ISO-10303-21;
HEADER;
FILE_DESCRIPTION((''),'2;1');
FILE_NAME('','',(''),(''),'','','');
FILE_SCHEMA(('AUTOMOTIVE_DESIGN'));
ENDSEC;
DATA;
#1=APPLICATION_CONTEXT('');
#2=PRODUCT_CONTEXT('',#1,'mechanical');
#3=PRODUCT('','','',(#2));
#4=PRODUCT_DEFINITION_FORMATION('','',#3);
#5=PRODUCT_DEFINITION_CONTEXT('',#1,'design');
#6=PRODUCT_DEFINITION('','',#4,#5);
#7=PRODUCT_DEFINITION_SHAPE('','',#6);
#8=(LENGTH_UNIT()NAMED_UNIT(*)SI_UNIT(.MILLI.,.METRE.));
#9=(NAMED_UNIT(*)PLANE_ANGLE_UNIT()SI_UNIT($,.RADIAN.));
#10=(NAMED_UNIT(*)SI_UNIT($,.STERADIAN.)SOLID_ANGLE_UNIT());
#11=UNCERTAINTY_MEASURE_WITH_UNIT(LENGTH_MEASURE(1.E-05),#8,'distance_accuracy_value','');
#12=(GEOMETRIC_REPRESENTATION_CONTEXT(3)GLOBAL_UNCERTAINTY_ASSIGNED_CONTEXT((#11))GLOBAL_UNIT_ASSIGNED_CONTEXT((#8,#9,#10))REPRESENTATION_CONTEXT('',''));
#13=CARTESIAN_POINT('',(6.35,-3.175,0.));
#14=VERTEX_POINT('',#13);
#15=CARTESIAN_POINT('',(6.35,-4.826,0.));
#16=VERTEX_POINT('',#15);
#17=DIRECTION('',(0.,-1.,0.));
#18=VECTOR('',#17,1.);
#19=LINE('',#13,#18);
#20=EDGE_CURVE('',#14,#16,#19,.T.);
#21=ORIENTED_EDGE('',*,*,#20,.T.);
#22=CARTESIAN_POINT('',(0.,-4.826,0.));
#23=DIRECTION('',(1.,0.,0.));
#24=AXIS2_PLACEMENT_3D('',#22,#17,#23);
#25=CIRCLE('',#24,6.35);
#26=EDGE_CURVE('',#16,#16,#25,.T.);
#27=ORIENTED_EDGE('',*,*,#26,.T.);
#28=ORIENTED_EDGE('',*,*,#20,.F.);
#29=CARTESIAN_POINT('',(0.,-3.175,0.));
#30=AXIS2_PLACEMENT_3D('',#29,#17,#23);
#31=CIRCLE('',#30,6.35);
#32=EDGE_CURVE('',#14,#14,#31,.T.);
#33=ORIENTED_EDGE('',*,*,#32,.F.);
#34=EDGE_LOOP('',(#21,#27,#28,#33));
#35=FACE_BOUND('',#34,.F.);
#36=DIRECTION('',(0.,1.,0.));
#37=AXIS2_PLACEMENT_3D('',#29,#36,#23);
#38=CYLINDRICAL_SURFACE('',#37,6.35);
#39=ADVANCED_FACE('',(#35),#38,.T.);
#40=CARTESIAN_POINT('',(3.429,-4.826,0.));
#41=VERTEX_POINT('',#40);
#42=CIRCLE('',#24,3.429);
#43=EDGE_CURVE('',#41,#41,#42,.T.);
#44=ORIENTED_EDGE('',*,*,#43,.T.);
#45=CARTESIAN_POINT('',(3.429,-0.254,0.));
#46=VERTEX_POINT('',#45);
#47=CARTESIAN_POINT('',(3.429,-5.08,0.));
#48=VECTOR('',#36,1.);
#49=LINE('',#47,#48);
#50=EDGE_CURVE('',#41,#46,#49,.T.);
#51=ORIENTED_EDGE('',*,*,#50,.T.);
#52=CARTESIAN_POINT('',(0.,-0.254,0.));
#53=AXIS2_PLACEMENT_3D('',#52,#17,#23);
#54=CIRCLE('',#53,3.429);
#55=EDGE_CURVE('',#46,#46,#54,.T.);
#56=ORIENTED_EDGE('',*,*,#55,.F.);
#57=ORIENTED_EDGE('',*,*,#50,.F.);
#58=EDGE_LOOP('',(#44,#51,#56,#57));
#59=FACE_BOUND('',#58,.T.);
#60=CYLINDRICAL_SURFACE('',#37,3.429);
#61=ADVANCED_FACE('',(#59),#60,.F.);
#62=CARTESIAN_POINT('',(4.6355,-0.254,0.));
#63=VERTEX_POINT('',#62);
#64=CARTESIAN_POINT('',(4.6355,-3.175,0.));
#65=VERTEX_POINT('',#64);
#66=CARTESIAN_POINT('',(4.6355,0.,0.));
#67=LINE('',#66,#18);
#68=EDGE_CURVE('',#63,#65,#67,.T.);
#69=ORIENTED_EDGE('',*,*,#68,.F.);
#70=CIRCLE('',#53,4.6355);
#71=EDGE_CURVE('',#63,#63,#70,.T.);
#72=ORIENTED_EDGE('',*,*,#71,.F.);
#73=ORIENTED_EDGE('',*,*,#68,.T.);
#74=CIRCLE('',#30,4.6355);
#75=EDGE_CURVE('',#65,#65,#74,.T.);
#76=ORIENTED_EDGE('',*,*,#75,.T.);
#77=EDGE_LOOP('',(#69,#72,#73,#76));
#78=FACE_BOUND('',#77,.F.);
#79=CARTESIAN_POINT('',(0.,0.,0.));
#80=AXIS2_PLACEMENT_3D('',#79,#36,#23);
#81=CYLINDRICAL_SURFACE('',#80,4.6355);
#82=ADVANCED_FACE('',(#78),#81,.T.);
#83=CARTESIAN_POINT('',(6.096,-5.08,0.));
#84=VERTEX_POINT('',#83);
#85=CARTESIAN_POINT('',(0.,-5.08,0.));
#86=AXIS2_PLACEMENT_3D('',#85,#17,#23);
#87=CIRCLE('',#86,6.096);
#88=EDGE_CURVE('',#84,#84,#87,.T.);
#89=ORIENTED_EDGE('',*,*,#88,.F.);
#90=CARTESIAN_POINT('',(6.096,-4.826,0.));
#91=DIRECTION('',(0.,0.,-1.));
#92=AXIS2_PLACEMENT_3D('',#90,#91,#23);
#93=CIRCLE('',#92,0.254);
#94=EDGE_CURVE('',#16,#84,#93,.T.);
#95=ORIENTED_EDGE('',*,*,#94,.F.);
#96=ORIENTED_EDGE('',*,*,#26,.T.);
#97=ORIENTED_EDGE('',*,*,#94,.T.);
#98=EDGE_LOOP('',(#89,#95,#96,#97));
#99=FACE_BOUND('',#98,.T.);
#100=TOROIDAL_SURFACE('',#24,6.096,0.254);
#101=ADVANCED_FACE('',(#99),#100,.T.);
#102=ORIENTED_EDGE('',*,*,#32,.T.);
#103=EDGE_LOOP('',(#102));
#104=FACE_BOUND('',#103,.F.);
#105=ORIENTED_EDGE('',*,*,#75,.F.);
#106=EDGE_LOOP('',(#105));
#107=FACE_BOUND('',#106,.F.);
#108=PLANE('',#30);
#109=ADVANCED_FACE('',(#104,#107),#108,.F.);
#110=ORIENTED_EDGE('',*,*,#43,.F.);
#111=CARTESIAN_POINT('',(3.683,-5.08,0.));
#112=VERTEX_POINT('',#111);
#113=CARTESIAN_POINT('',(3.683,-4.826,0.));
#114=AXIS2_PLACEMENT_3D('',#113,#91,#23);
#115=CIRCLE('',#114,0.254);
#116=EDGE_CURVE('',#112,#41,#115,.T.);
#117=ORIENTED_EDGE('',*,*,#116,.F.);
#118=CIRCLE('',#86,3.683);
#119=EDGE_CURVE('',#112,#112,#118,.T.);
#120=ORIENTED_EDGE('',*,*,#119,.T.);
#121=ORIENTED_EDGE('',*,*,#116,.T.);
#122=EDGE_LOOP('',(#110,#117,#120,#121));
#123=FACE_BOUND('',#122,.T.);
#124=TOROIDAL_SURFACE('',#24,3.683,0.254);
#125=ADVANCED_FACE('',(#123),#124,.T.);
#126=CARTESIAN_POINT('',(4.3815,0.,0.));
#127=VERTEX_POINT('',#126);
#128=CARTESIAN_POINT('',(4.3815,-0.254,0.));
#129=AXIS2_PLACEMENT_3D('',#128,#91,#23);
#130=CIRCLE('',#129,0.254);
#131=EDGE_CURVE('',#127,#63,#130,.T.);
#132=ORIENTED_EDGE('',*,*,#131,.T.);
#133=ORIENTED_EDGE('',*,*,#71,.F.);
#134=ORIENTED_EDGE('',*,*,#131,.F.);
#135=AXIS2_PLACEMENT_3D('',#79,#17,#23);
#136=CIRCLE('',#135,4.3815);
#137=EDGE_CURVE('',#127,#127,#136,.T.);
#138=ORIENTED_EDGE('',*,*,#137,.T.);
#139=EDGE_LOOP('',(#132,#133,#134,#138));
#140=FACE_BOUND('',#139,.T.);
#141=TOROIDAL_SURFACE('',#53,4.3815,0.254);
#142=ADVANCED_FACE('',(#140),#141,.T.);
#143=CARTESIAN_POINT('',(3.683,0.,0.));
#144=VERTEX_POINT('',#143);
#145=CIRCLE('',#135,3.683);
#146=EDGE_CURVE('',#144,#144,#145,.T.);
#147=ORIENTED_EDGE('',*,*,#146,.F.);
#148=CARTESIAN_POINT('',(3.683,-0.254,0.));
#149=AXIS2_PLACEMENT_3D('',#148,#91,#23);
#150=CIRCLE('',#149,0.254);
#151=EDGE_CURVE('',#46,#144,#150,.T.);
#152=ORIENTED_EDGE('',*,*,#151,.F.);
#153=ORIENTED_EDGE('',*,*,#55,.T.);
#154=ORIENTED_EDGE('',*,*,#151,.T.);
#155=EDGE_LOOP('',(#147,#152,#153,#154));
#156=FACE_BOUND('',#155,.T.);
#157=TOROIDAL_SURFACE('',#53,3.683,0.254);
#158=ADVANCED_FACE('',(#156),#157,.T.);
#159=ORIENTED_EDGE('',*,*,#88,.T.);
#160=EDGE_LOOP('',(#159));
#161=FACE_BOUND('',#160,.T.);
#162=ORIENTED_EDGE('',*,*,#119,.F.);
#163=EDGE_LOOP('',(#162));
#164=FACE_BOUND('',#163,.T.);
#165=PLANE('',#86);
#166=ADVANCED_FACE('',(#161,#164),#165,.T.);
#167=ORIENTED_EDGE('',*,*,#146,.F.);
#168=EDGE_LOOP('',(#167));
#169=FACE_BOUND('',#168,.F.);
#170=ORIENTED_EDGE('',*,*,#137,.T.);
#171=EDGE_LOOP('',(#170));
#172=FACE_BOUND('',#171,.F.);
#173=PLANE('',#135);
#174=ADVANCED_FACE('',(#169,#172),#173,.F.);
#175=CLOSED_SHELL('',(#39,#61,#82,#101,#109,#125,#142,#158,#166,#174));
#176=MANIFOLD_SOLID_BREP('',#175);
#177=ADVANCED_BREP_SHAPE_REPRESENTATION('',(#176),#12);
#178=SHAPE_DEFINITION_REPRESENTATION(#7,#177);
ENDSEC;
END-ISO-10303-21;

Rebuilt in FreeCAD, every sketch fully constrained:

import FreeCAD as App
import Part
import Sketcher

V = App.Vector
Q = App.Units.Quantity


def edges_at(feature, points):
    """Names of the edges that pass closest to the given points."""
    edges = feature.Shape.Edges
    near = lambda p: min(range(len(edges)), key=lambda i: edges[i].distToShape(Part.Vertex(*p))[0])
    return sorted({f"Edge{near(p) + 1}" for p in points})

doc = App.newDocument("Part")
params = doc.addObject("Spreadsheet::Sheet", "Params")
for row, (alias, value) in enumerate([
    ("sketch1_diameter", "0.27 in"),
    ("sketch1_diameter2", "0.365 in"),
    ("pad1_length", "0.125 in"),
    ("sketch2_diameter", "0.5 in"),
    ("sketch2_diameter2", "0.27 in"),
    ("pad2_length", "0.075 in"),
    ("fillet_radius", "0.01 in"),
], start=1):
    params.set(f"A{row}", alias)
    params.set(f"B{row}", "=" + value)
    params.setAlias(f"B{row}", alias)

body = doc.addObject("PartDesign::Body", "Body")

sketch1 = body.newObject("Sketcher::SketchObject", "Sketch")
sketch1.AttachmentSupport = (doc.getObject("XZ_Plane"), [""])
sketch1.MapMode = "FlatFace"
sketch1.addGeometry([
    Part.Circle(V(0, 0, 0), V(0, 0, 1), 4.6),
    Part.Circle(V(0, 0, 0), V(0, 0, 1), 3.4),
], False)
sketch1.addConstraint([
    Sketcher.Constraint("Coincident", 0, 3, -1, 1),
    Sketcher.Constraint("Coincident", 1, 3, -1, 1),
    Sketcher.Constraint("Diameter", 1, Q("0.27 in")),
    Sketcher.Constraint("Diameter", 0, Q("0.365 in")),
])
sketch1.setExpression("Constraints[2]", "Params.sketch1_diameter")
sketch1.setExpression("Constraints[3]", "Params.sketch1_diameter2")
pad1 = body.newObject("PartDesign::Pad", "Pad")
pad1.Profile = sketch1
pad1.setExpression("Length", "Params.pad1_length")

sketch2 = body.newObject("Sketcher::SketchObject", "Sketch001")
sketch2.AttachmentSupport = (doc.getObject("XZ_Plane"), [""])
sketch2.MapMode = "FlatFace"
sketch2.AttachmentOffset = App.Placement(V(0, 0, 0.125 * 25.4), App.Rotation())
sketch2.addGeometry([
    Part.Circle(V(0, 0, 0), V(0, 0, 1), 6.3),
    Part.Circle(V(0, 0, 0), V(0, 0, 1), 3.4),
], False)
sketch2.addConstraint([
    Sketcher.Constraint("Coincident", 0, 3, -1, 1),
    Sketcher.Constraint("Coincident", 1, 3, -1, 1),
    Sketcher.Constraint("Diameter", 0, Q("0.5 in")),
    Sketcher.Constraint("Diameter", 1, Q("0.27 in")),
])
sketch2.setExpression("Constraints[2]", "Params.sketch2_diameter")
sketch2.setExpression("Constraints[3]", "Params.sketch2_diameter2")
pad2 = body.newObject("PartDesign::Pad", "Pad001")
pad2.Profile = sketch2
pad2.setExpression("Length", "Params.pad2_length")
doc.recompute()

fillet = body.newObject("PartDesign::Fillet", "Fillet")
fillet.Base = (pad2, edges_at(pad2, [
    (-6.35, -5.08, 0),
    (-3.429, -5.08, 0),
    (-4.636, 0, 0),
    (-3.429, 0, 0),
]))
fillet.setExpression("Radius", "Params.fillet_radius")

doc.recompute()
